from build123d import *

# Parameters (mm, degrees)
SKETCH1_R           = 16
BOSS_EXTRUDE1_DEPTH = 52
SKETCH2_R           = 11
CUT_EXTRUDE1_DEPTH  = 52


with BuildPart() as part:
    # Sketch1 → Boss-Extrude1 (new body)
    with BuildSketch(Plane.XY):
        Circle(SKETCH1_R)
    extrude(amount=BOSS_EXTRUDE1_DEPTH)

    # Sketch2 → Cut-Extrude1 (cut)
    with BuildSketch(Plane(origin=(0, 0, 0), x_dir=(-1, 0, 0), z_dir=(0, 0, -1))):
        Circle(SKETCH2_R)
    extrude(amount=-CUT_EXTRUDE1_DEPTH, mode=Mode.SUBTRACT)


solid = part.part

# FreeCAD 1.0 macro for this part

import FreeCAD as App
import Part
import Sketcher
from FreeCAD import Vector
Q = App.Units.Quantity

doc = App.newDocument("Part")
body = doc.addObject("PartDesign::Body", "Body")

# Sketch on XY plane
sketch1 = doc.addObject("Sketcher::SketchObject", "Sketch")
body.addObject(sketch1)
sketch1.AttachmentSupport = (doc.XY_Plane, [""])
sketch1.MapMode = "FlatFace"
sketch1.addGeometry(Part.Circle(Vector(0, 0, 0), Vector(0, 0, 1), 16), False)
sketch1.addConstraint([
    Sketcher.Constraint("Coincident", 0, 3, -1, 1),
    Sketcher.Constraint("Diameter", 0, Q("32 mm")),
])
pad1 = doc.addObject("PartDesign::Pad", "Pad")
body.addObject(pad1)
pad1.Profile = sketch1
pad1.Length = 52

# Sketch on XY plane
sketch2 = doc.addObject("Sketcher::SketchObject", "Sketch001")
body.addObject(sketch2)
sketch2.AttachmentSupport = (doc.XY_Plane, [""])
sketch2.MapMode = "FlatFace"
sketch2.addGeometry(Part.Circle(Vector(0, 0, 0), Vector(0, 0, 1), 11), False)
sketch2.addConstraint([
    Sketcher.Constraint("Coincident", 0, 3, -1, 1),
    Sketcher.Constraint("Diameter", 0, Q("22 mm")),
])
pocket1 = doc.addObject("PartDesign::Pocket", "Pocket")
body.addObject(pocket1)
pocket1.Profile = sketch2
pocket1.Length = 52
pocket1.Reversed = True

doc.recompute()
